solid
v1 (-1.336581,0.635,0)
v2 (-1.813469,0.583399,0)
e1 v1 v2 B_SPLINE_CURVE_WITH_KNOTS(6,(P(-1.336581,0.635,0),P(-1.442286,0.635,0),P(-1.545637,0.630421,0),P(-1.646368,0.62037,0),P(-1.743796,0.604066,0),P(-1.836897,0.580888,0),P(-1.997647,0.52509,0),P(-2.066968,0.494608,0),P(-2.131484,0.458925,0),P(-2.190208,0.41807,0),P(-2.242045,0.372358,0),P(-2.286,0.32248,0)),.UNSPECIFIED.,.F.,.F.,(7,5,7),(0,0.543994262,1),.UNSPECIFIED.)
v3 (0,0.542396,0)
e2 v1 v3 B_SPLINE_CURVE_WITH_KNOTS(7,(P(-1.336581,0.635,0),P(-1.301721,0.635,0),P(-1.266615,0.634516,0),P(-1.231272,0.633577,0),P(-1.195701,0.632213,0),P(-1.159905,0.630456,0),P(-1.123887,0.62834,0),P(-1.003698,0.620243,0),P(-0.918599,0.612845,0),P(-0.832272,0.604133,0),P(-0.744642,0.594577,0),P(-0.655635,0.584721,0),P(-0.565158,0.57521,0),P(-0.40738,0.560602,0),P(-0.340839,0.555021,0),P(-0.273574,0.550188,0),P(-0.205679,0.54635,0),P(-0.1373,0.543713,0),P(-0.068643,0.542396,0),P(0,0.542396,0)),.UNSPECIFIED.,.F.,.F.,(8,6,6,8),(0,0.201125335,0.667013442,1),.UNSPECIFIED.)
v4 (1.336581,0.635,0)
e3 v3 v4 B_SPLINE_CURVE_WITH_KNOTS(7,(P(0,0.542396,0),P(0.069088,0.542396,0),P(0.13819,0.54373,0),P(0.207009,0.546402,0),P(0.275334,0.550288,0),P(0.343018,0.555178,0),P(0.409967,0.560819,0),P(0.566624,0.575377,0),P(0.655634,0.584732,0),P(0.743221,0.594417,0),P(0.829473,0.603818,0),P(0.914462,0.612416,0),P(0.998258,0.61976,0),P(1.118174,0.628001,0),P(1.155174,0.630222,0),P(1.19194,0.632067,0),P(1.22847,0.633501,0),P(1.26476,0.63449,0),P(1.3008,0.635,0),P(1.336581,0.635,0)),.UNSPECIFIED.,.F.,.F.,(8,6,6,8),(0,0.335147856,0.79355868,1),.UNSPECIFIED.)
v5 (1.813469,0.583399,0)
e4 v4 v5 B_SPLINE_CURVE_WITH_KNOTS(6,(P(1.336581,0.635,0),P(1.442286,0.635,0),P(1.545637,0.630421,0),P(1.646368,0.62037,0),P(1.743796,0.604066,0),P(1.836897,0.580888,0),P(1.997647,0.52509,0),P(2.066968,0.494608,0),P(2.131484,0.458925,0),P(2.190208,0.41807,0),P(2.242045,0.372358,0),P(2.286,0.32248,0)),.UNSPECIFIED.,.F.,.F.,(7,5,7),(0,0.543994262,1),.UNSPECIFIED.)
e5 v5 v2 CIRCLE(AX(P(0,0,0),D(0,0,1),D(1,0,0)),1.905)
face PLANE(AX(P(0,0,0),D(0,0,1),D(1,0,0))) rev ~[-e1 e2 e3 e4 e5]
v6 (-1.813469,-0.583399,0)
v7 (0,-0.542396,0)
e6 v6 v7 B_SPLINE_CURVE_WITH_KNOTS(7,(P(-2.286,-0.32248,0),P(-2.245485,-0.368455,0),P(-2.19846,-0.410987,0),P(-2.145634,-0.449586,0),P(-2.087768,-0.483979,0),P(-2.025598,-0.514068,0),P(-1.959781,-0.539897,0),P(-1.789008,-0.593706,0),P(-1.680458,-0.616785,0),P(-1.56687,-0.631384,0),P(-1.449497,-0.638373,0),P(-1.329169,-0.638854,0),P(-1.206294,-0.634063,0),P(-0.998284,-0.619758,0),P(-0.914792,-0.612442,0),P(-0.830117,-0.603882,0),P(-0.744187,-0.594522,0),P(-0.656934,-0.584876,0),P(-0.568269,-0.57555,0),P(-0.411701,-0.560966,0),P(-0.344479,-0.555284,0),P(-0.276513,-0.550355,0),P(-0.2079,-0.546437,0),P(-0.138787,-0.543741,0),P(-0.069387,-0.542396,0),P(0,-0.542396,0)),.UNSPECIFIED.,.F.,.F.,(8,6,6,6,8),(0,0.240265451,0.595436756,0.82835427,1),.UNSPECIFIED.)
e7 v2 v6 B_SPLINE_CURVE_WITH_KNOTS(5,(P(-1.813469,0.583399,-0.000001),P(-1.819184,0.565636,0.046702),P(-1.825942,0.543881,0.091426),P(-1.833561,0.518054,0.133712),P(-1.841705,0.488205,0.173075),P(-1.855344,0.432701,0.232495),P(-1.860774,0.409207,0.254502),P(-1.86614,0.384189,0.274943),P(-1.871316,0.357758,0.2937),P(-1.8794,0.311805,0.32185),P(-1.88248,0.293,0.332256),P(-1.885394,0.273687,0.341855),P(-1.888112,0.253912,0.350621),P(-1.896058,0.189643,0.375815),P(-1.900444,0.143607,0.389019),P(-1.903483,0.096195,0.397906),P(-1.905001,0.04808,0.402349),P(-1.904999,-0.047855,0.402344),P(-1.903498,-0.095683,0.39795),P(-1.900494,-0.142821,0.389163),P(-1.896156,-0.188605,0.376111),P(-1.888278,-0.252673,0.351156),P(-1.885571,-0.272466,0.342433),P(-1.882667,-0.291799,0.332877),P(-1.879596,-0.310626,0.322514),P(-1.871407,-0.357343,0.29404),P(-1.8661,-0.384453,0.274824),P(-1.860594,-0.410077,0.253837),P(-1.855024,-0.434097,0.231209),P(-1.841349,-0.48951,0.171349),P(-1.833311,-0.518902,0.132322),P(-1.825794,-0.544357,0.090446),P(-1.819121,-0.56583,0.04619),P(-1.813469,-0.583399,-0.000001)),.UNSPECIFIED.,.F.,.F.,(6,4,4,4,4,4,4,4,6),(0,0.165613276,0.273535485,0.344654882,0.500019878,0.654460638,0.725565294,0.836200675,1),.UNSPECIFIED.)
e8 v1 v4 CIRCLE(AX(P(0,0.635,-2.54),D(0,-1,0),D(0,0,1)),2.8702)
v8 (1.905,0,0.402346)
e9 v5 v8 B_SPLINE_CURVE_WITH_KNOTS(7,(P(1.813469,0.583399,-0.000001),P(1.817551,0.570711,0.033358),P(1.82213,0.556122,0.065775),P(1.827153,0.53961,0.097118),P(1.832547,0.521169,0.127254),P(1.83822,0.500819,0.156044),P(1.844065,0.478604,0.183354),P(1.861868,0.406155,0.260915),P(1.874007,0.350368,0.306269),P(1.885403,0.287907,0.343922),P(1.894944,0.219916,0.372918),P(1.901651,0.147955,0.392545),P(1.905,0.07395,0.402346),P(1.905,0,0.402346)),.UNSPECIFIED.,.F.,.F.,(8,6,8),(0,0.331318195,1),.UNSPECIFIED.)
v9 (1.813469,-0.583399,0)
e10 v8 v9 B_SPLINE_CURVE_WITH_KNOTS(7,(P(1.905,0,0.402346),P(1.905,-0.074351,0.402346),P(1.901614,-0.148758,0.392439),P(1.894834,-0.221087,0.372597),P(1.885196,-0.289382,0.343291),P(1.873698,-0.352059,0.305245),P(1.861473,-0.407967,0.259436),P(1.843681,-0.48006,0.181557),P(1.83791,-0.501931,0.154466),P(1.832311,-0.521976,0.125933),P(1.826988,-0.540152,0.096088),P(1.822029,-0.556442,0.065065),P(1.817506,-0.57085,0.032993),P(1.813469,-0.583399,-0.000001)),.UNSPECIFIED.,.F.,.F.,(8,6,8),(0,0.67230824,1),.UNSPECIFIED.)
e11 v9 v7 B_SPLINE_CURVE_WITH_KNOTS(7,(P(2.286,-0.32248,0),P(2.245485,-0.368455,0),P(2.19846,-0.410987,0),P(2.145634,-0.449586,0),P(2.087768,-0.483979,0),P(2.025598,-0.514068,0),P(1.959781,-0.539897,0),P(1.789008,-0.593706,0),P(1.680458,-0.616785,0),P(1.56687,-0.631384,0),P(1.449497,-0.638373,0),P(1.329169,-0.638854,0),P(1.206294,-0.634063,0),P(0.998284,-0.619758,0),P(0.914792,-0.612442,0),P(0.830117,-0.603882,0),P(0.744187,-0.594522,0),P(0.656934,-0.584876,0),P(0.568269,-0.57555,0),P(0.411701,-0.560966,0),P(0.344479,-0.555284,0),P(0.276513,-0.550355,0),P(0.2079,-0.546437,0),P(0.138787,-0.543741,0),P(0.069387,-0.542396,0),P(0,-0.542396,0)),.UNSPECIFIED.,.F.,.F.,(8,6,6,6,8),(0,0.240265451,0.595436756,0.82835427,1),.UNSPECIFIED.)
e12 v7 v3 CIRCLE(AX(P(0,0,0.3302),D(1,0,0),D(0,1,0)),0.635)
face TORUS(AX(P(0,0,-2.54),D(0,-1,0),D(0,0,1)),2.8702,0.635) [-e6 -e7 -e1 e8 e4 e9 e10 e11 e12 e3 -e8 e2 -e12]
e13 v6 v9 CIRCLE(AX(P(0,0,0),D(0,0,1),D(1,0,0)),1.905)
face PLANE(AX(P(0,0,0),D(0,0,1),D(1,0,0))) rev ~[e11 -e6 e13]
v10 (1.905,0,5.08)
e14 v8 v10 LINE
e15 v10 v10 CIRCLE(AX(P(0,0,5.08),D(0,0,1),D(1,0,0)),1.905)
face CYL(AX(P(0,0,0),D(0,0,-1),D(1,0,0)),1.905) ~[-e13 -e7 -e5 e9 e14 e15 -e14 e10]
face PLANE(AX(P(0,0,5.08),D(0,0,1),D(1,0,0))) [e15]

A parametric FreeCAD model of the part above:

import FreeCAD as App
import Part
import Sketcher
from FreeCAD import Vector
Q = App.Units.Quantity

doc = App.newDocument("Part")
body = doc.addObject("PartDesign::Body", "Body")

sketch1 = body.newObject("Sketcher::SketchObject", "Sketch")
sketch1.AttachmentSupport = (doc.getObject("XY_Plane"), [""])
sketch1.MapMode = "FlatFace"
sketch1.addGeometry(Part.Circle(Vector(0, 0, 0), Vector(0, 0, 1), 1.9), False)
sketch1.addConstraint(Sketcher.Constraint("Coincident", 0, 3, -1, 1))
sketch1.addConstraint(Sketcher.Constraint("Diameter", 0, Q("0.15 in")))
pad1 = body.newObject("PartDesign::Pad", "Pad")
pad1.Profile = sketch1
pad1.Length = Q("0.2 in")

sketch2 = body.newObject("Sketcher::SketchObject", "Sketch001")
sketch2.AttachmentSupport = (doc.getObject("YZ_Plane"), [""])
sketch2.MapMode = "FlatFace"
sketch2.addGeometry(Part.Circle(Vector(0, 0.3, 0), Vector(0, 0, 1), 0.6), False)
sketch2.addGeometry(Part.LineSegment(Vector(0, -2.5, 0), Vector(-10, -2.5, 0)), True)
sketch2.addConstraint(Sketcher.Constraint("Horizontal", 1))
sketch2.addConstraint(Sketcher.Constraint("PointOnObject", 0, 3, -2))
sketch2.addConstraint(Sketcher.Constraint("PointOnObject", 1, 1, -2))
sketch2.addConstraint(Sketcher.Constraint("Diameter", 0, Q("0.05 in")))
sketch2.addConstraint(Sketcher.Constraint("DistanceY", 1, 1, -1, 1, Q("0.1 in")))
sketch2.addConstraint(Sketcher.Constraint("DistanceY", -1, 1, 0, 3, Q("0.013 in")))
sketch2.addConstraint(Sketcher.Constraint("DistanceX", 1, 2, 1, 1, Q("10 mm")))
revolution = body.newObject("PartDesign::Revolution", "Revolution")
revolution.Profile = sketch2
revolution.ReferenceAxis = (sketch2, ["Axis0"])
revolution.Angle = 360

doc.recompute()
